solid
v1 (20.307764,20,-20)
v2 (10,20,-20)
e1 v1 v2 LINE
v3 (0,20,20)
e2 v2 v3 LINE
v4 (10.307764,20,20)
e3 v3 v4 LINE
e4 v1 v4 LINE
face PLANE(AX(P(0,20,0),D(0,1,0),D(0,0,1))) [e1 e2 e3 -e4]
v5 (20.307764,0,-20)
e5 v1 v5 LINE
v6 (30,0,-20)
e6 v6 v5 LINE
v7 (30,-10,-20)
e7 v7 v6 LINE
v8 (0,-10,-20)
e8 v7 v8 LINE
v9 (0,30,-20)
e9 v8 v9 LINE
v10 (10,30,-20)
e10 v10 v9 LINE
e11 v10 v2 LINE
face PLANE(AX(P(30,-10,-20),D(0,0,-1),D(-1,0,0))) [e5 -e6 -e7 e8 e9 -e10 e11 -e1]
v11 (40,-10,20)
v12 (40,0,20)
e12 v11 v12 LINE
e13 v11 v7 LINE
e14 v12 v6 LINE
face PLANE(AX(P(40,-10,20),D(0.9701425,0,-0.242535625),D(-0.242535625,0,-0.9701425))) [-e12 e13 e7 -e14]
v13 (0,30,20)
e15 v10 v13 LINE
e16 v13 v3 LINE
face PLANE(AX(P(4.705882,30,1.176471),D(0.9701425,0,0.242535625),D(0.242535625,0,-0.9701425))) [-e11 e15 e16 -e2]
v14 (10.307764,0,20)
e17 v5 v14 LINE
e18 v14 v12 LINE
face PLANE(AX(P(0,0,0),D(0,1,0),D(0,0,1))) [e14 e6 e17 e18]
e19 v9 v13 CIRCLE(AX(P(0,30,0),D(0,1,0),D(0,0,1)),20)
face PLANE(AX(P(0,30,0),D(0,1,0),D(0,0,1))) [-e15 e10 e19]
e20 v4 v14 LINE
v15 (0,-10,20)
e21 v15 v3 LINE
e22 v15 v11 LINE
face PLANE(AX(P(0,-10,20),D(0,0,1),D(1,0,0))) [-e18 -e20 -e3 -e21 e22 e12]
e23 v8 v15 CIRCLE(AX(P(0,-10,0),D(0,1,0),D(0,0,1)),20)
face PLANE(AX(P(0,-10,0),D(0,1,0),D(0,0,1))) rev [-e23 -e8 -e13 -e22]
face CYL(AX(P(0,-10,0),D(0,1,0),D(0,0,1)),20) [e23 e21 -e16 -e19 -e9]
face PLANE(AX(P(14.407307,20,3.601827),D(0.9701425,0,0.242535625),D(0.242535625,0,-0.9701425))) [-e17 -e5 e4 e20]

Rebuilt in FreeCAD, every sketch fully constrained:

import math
import FreeCAD as App
import Part
import Sketcher

V = App.Vector
Q = App.Units.Quantity


def add_polygon(sketch, points):
    """Adds a closed chain of lines whose ends are joined by coincident constraints."""
    first, n = sketch.GeometryCount, len(points)
    for a, b in zip(points, points[1:] + points[:1]):
        sketch.addGeometry(Part.LineSegment(App.Vector(*a, 0), App.Vector(*b, 0)), False)
    for i in range(n):
        sketch.addConstraint(Sketcher.Constraint("Coincident", first + i, 2, first + (i + 1) % n, 1))

doc = App.newDocument("Part")
body = doc.addObject("PartDesign::Body", "Body")

# Sketch on XZ plane
sketch1 = body.newObject("Sketcher::SketchObject", "Sketch")
sketch1.AttachmentSupport = (doc.getObject("XZ_Plane"), [""])
sketch1.MapMode = "FlatFace"
sketch1.addGeometry(Part.LineSegment(V(0, 20, 0), V(40, 20, 0)), False)
sketch1.addGeometry(Part.LineSegment(V(40, 20, 0), V(30, -20, 0)), False)
sketch1.addGeometry(Part.LineSegment(V(30, -20, 0), V(0, -20, 0)), False)
sketch1.addGeometry(Part.ArcOfCircle(Part.Circle(V(0, 0, 0), V(0, 0, 1), 20), math.radians(90), math.radians(270)), False)
sketch1.addConstraint(Sketcher.Constraint("Coincident", 0, 2, 1, 1))
sketch1.addConstraint(Sketcher.Constraint("Coincident", 1, 2, 2, 1))
sketch1.addConstraint(Sketcher.Constraint("Tangent", 2, 2, 3, 2))
sketch1.addConstraint(Sketcher.Constraint("Tangent", 3, 1, 0, 1))
sketch1.addConstraint(Sketcher.Constraint("Horizontal", 0))
sketch1.addConstraint(Sketcher.Constraint("Horizontal", 2))
sketch1.addConstraint(Sketcher.Constraint("Coincident", 3, 3, -1, 1))
sketch1.addConstraint(Sketcher.Constraint("Radius", 3, Q("20 mm")))
sketch1.addConstraint(Sketcher.Constraint("DistanceX", 0, 1, 0, 2, Q("40 mm")))
sketch1.addConstraint(Sketcher.Constraint("DistanceX", 2, 2, 2, 1, Q("30 mm")))
pad1 = body.newObject("PartDesign::Pad", "Pad")
pad1.Profile = sketch1
pad1.Length = 10

# Sketch on XZ plane
sketch2 = body.newObject("Sketcher::SketchObject", "Sketch001")
sketch2.AttachmentSupport = (doc.getObject("XZ_Plane"), [""])
sketch2.MapMode = "FlatFace"
sketch2.AttachmentOffset = App.Placement(V(0, 0, -30), App.Rotation())
sketch2.addGeometry(Part.LineSegment(V(10, -20, 0), V(0, -20, 0)), False)
sketch2.addGeometry(Part.ArcOfCircle(Part.Circle(V(0, 0, 0), V(0, 0, 1), 20), math.radians(90), math.radians(270)), False)
sketch2.addGeometry(Part.LineSegment(V(0, 20, 0), V(10, -20, 0)), False)
sketch2.addConstraint(Sketcher.Constraint("Tangent", 0, 2, 1, 2))
sketch2.addConstraint(Sketcher.Constraint("Coincident", 1, 1, 2, 1))
sketch2.addConstraint(Sketcher.Constraint("Coincident", 2, 2, 0, 1))
sketch2.addConstraint(Sketcher.Constraint("Horizontal", 0))
sketch2.addConstraint(Sketcher.Constraint("Coincident", 1, 3, -1, 1))
sketch2.addConstraint(Sketcher.Constraint("PointOnObject", 1, 1, -2))
sketch2.addConstraint(Sketcher.Constraint("Radius", 1, Q("20 mm")))
sketch2.addConstraint(Sketcher.Constraint("DistanceX", 0, 2, 0, 1, Q("10 mm")))
pad2 = body.newObject("PartDesign::Pad", "Pad001")
pad2.Profile = sketch2
pad2.Length = 30

# Sketch on XZ plane
sketch3 = body.newObject("Sketcher::SketchObject", "Sketch002")
sketch3.AttachmentSupport = (doc.getObject("XZ_Plane"), [""])
sketch3.MapMode = "FlatFace"
add_polygon(sketch3, [(20, -20), (10, -20), (0, 20), (10, 20)])  # lines 0-3
sketch3.addConstraint(Sketcher.Constraint("Horizontal", 0))
sketch3.addConstraint(Sketcher.Constraint("Horizontal", 2))
sketch3.addConstraint(Sketcher.Constraint("PointOnObject", 1, 2, -2))
sketch3.addConstraint(Sketcher.Constraint("Parallel", 1, 3))
sketch3.addConstraint(Sketcher.Constraint("DistanceX", -1, 1, 0, 2, Q("10 mm")))
sketch3.addConstraint(Sketcher.Constraint("DistanceY", 0, 2, -1, 1, Q("20 mm")))
sketch3.addConstraint(Sketcher.Constraint("DistanceY", -1, 1, 1, 2, Q("20 mm")))
sketch3.addConstraint(Sketcher.Constraint("DistanceX", 0, 2, 0, 1, Q("10.307764 mm")))
pad3 = body.newObject("PartDesign::Pad", "Pad002")
pad3.Profile = sketch3
pad3.Length = 20
pad3.Reversed = True

doc.recompute()
